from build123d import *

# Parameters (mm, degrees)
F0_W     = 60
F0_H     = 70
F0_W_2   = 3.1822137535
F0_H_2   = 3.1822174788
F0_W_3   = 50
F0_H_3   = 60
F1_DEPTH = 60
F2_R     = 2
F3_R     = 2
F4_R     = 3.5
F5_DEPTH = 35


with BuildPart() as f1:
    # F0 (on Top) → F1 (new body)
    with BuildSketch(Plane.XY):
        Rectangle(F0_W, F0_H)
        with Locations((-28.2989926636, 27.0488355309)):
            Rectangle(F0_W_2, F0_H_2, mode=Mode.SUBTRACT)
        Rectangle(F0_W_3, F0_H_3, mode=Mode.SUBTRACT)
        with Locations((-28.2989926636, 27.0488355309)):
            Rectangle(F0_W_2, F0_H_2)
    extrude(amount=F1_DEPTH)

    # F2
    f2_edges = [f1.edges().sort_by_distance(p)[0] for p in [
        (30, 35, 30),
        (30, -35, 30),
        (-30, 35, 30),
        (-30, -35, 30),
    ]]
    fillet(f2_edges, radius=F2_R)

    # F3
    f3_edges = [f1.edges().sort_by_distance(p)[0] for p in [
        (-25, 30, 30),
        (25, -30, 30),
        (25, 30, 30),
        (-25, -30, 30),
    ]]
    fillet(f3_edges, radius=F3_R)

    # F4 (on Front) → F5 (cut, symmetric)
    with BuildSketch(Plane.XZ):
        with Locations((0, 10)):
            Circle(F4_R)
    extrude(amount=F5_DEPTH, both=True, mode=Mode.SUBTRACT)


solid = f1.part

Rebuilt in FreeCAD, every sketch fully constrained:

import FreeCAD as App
import Part
import Sketcher
from FreeCAD import Vector
Q = App.Units.Quantity


def edges_at(feature, points):
    """Names of the edges that pass closest to the given points."""
    edges = feature.Shape.Edges
    near = lambda p: min(range(len(edges)), key=lambda i: edges[i].distToShape(Part.Vertex(*p))[0])
    return sorted({f"Edge{near(p) + 1}" for p in points})

doc = App.newDocument("Part")
params = doc.addObject("Spreadsheet::Sheet", "Params")
for row, (alias, value) in enumerate([
    ("sketch1_width", "60 mm"),
    ("sketch1_width2", "50 mm"),
    ("sketch1_height", "70 mm"),
    ("pad1_length", "60 mm"),
    ("fillet_radius", "2 mm"),
    ("fillet2_radius", "2 mm"),
    ("sketch2_diameter", "7 mm"),
    ("pocket1_length", "70 mm"),
], start=1):
    params.set(f"A{row}", alias)
    params.set(f"B{row}", "=" + value)
    params.setAlias(f"B{row}", alias)

body = doc.addObject("PartDesign::Body", "Body")

# Sketch on XY plane
sketch1 = body.newObject("Sketcher::SketchObject", "Sketch")
sketch1.AttachmentSupport = (doc.getObject("XY_Plane"), [""])
sketch1.MapMode = "FlatFace"
sketch1.addGeometry([
    Part.LineSegment(Vector(-30, 35, 0), Vector(-30, -35, 0)),  # 0
    Part.LineSegment(Vector(-30, -35, 0), Vector(30, -35, 0)),  # 1
    Part.LineSegment(Vector(30, -35, 0), Vector(30, 35, 0)),  # 2
    Part.LineSegment(Vector(30, 35, 0), Vector(-30, 35, 0)),  # 3
    Part.LineSegment(Vector(25, -30, 0), Vector(-25, -30, 0)),  # 4
    Part.LineSegment(Vector(-25, -30, 0), Vector(-25, 30, 0)),  # 5
    Part.LineSegment(Vector(-25, 30, 0), Vector(25, 30, 0)),  # 6
    Part.LineSegment(Vector(25, 30, 0), Vector(25, -30, 0)),  # 7
], False)
sketch1.addConstraint([
    Sketcher.Constraint("Coincident", 0, 2, 1, 1),
    Sketcher.Constraint("Coincident", 1, 2, 2, 1),
    Sketcher.Constraint("Coincident", 2, 2, 3, 1),
    Sketcher.Constraint("Coincident", 3, 2, 0, 1),
    Sketcher.Constraint("Coincident", 4, 2, 5, 1),
    Sketcher.Constraint("Coincident", 5, 2, 6, 1),
    Sketcher.Constraint("Coincident", 6, 2, 7, 1),
    Sketcher.Constraint("Coincident", 7, 2, 4, 1),
    Sketcher.Constraint("Vertical", 0),
    Sketcher.Constraint("Horizontal", 1),
    Sketcher.Constraint("Vertical", 2),
    Sketcher.Constraint("Horizontal", 3),
    Sketcher.Constraint("Horizontal", 4),
    Sketcher.Constraint("Vertical", 5),
    Sketcher.Constraint("Horizontal", 6),
    Sketcher.Constraint("Vertical", 7),
    Sketcher.Constraint("Symmetric", 0, 2, 2, 2, -1, 1),
    Sketcher.Constraint("Symmetric", 4, 2, 6, 2, -1, 1),
    Sketcher.Constraint("Equal", 3, 5),
    Sketcher.Constraint("DistanceX", 1, 1, 1, 2, Q("60 mm")),
    Sketcher.Constraint("DistanceX", 4, 2, 4, 1, Q("50 mm")),
    Sketcher.Constraint("DistanceY", 0, 2, 0, 1, Q("70 mm")),
])
sketch1.setExpression("Constraints[19]", "Params.sketch1_width")
sketch1.setExpression("Constraints[20]", "Params.sketch1_width2")
sketch1.setExpression("Constraints[21]", "Params.sketch1_height")
pad1 = body.newObject("PartDesign::Pad", "Pad")
pad1.Profile = sketch1
pad1.setExpression("Length", "Params.pad1_length")
doc.recompute()

fillet = body.newObject("PartDesign::Fillet", "Fillet")
fillet.Base = (pad1, edges_at(pad1, [
    (30, 35, 30),
    (30, -35, 30),
    (-30, 35, 30),
    (-30, -35, 30),
]))
fillet.setExpression("Radius", "Params.fillet_radius")
doc.recompute()

fillet2 = body.newObject("PartDesign::Fillet", "Fillet001")
fillet2.Base = (fillet, edges_at(fillet, [
    (-25, 30, 30),
    (25, -30, 30),
    (25, 30, 30),
    (-25, -30, 30),
]))
fillet2.setExpression("Radius", "Params.fillet2_radius")

# Sketch on XZ plane
sketch2 = body.newObject("Sketcher::SketchObject", "Sketch001")
sketch2.AttachmentSupport = (doc.getObject("XZ_Plane"), [""])
sketch2.MapMode = "FlatFace"
sketch2.addGeometry(Part.Circle(Vector(0, 10, 0), Vector(0, 0, 1), 3.5), False)
sketch2.addConstraint([
    Sketcher.Constraint("PointOnObject", 0, 3, -2),
    Sketcher.Constraint("Diameter", 0, Q("7 mm")),
    Sketcher.Constraint("DistanceY", -1, 1, 0, 3, Q("10 mm")),
])
sketch2.setExpression("Constraints[1]", "Params.sketch2_diameter")
pocket1 = body.newObject("PartDesign::Pocket", "Pocket")
pocket1.Profile = sketch2
pocket1.setExpression("Length", "Params.pocket1_length")
pocket1.Midplane = True

doc.recompute()
